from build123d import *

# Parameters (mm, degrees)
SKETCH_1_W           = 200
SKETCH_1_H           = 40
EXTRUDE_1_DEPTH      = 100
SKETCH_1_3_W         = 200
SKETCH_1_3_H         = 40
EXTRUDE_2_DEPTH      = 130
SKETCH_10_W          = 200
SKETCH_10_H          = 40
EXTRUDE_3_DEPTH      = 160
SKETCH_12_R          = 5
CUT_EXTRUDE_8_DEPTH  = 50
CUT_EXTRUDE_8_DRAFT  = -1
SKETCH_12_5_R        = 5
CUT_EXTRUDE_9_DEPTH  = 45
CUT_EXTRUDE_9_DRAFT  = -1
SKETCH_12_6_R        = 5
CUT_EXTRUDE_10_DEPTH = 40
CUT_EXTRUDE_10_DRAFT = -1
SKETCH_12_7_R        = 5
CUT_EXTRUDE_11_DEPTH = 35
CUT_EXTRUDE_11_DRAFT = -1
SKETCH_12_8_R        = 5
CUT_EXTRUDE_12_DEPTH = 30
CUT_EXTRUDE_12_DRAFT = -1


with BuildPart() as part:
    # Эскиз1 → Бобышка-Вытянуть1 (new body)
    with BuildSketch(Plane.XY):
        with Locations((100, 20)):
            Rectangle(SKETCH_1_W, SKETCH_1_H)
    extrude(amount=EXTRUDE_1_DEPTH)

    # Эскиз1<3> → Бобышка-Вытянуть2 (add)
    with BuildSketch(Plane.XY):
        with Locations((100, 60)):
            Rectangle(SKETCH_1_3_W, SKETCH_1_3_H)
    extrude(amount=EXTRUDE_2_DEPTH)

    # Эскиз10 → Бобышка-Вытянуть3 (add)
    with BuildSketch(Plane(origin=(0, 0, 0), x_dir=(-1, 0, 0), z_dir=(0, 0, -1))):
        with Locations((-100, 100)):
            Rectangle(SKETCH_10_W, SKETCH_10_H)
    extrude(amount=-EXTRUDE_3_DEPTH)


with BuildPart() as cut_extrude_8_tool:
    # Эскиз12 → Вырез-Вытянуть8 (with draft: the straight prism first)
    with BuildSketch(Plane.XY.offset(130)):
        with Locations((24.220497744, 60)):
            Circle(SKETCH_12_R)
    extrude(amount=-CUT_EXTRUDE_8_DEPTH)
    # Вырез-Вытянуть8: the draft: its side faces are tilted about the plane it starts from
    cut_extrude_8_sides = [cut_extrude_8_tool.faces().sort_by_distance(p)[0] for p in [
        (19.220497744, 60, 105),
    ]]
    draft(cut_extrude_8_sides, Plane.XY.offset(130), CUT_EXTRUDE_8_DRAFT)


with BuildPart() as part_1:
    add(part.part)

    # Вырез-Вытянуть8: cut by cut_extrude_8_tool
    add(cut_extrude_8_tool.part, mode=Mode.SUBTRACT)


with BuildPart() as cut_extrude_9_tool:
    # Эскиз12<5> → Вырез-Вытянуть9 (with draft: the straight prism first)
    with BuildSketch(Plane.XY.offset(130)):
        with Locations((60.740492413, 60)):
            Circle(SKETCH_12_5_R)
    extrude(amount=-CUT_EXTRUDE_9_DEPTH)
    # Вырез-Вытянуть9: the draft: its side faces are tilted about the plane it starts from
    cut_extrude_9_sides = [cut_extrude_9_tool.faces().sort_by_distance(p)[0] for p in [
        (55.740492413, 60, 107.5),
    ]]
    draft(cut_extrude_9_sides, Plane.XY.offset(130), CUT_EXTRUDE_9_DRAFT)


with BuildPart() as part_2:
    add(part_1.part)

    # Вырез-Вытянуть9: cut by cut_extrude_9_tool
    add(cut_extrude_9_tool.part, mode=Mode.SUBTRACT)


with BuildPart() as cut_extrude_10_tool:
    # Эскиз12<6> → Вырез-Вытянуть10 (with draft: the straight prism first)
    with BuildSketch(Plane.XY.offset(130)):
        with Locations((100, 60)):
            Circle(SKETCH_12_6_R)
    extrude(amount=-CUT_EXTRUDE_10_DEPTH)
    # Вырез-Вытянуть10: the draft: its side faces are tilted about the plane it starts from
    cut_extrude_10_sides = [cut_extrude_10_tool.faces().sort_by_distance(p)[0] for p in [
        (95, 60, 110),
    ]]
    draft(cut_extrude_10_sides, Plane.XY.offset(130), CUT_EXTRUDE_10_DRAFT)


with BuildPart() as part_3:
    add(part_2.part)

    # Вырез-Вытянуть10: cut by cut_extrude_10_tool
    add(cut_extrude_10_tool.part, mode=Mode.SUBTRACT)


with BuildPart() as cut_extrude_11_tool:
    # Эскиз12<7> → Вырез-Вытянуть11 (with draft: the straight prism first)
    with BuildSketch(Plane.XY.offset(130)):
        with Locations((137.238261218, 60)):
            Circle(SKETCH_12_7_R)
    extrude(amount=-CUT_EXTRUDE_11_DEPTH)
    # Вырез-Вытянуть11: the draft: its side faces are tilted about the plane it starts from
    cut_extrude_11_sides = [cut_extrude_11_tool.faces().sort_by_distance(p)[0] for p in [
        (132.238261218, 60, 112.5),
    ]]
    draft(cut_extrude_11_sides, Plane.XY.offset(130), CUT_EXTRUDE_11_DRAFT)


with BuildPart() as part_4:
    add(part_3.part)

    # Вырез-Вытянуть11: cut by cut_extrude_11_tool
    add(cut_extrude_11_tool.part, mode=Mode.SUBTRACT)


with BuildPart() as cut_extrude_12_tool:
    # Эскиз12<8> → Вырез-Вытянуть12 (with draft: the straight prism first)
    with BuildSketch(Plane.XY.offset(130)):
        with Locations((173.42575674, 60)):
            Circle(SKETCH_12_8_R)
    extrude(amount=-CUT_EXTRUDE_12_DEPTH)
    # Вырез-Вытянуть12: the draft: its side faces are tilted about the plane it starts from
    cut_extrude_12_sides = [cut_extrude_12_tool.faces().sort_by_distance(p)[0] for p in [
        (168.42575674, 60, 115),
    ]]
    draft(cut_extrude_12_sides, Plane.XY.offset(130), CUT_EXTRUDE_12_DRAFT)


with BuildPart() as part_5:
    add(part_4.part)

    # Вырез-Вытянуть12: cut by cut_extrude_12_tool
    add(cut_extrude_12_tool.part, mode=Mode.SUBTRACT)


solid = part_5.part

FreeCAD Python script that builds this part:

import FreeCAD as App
import Part
import Sketcher

V = App.Vector
Q = App.Units.Quantity


def faces_at(feature, points):
    """Names of the faces that lie closest to the given points."""
    faces = feature.Shape.Faces
    near = lambda p: min(range(len(faces)), key=lambda i: faces[i].distToShape(Part.Vertex(*p))[0])
    return sorted({f"Face{near(p) + 1}" for p in points})


def add_polygon(sketch, points):
    """Adds a closed chain of lines whose ends are joined by coincident constraints."""
    first, n = sketch.GeometryCount, len(points)
    for a, b in zip(points, points[1:] + points[:1]):
        sketch.addGeometry(Part.LineSegment(App.Vector(*a, 0), App.Vector(*b, 0)), False)
    for i in range(n):
        sketch.addConstraint(Sketcher.Constraint("Coincident", first + i, 2, first + (i + 1) % n, 1))

doc = App.newDocument("Part")
body = doc.addObject("PartDesign::Body", "Body")

# Sketch on XY plane
sketch1 = body.newObject("Sketcher::SketchObject", "Sketch")
sketch1.AttachmentSupport = (doc.getObject("XY_Plane"), [""])
sketch1.MapMode = "FlatFace"
add_polygon(sketch1, [(0, 40), (0, 0), (200, 0), (200, 40)])  # lines 0-3
sketch1.addConstraint([
    Sketcher.Constraint("Vertical", 0),
    Sketcher.Constraint("Horizontal", 1),
    Sketcher.Constraint("Vertical", 2),
    Sketcher.Constraint("Horizontal", 3),
    Sketcher.Constraint("Coincident", 0, 2, -1, 1),
    Sketcher.Constraint("DistanceX", 1, 1, 1, 2, Q("200 mm")),
    Sketcher.Constraint("DistanceY", 0, 2, 0, 1, Q("40 mm")),
])
pad1 = body.newObject("PartDesign::Pad", "Pad")
pad1.Profile = sketch1
pad1.Length = 100

# Sketch on XY plane
sketch2 = body.newObject("Sketcher::SketchObject", "Sketch001")
sketch2.AttachmentSupport = (doc.getObject("XY_Plane"), [""])
sketch2.MapMode = "FlatFace"
add_polygon(sketch2, [(0, 80), (0, 40), (200, 40), (200, 80)])  # lines 0-3
sketch2.addConstraint([
    Sketcher.Constraint("Vertical", 0),
    Sketcher.Constraint("Horizontal", 1),
    Sketcher.Constraint("Vertical", 2),
    Sketcher.Constraint("Horizontal", 3),
    Sketcher.Constraint("PointOnObject", 0, 2, -2),
    Sketcher.Constraint("DistanceX", 1, 1, 1, 2, Q("200 mm")),
    Sketcher.Constraint("DistanceY", 0, 2, 0, 1, Q("40 mm")),
    Sketcher.Constraint("DistanceY", -1, 1, 0, 2, Q("40 mm")),
])
pad2 = body.newObject("PartDesign::Pad", "Pad001")
pad2.Profile = sketch2
pad2.Length = 130

# Sketch on XY plane
sketch3 = body.newObject("Sketcher::SketchObject", "Sketch002")
sketch3.AttachmentSupport = (doc.getObject("XY_Plane"), [""])
sketch3.MapMode = "FlatFace"
add_polygon(sketch3, [(200, 120), (200, 80), (0, 80), (0, 120)])  # lines 0-3
sketch3.addConstraint([
    Sketcher.Constraint("Vertical", 0),
    Sketcher.Constraint("Horizontal", 1),
    Sketcher.Constraint("Vertical", 2),
    Sketcher.Constraint("Horizontal", 3),
    Sketcher.Constraint("PointOnObject", 1, 2, -2),
    Sketcher.Constraint("DistanceX", 1, 2, 1, 1, Q("200 mm")),
    Sketcher.Constraint("DistanceY", 0, 2, 0, 1, Q("40 mm")),
    Sketcher.Constraint("DistanceY", -1, 1, 0, 2, Q("80 mm")),
])
pad3 = body.newObject("PartDesign::Pad", "Pad002")
pad3.Profile = sketch3
pad3.Length = 160
body2 = doc.addObject("PartDesign::Body", "Body001")

# Sketch on XY plane
sketch4 = body2.newObject("Sketcher::SketchObject", "Sketch003")
sketch4.AttachmentSupport = (doc.getObject("XY_Plane001"), [""])
sketch4.MapMode = "FlatFace"
sketch4.AttachmentOffset = App.Placement(V(0, 0, 130), App.Rotation())
sketch4.addGeometry(Part.Circle(V(24, 60, 0), V(0, 0, 1), 5), False)
sketch4.addConstraint([
    Sketcher.Constraint("Diameter", 0, Q("10 mm")),
    Sketcher.Constraint("DistanceY", -1, 1, 0, 3, Q("60 mm")),
    Sketcher.Constraint("DistanceX", -1, 1, 0, 3, Q("24.220498 mm")),
])
pad4 = body2.newObject("PartDesign::Pad", "Pad003")
pad4.Profile = sketch4
pad4.Length = 50
pad4.Reversed = True
doc.recompute()

datumplane = body2.newObject("PartDesign::Plane", "DatumPlane")
datumplane.AttachmentSupport = (doc.getObject("XY_Plane001"), [""])
datumplane.MapMode = "FlatFace"
datumplane.AttachmentOffset = App.Placement(V(0, 0, 130), App.Rotation())
draft = body2.newObject("PartDesign::Draft", "Draft")
draft.Base = (pad4, faces_at(pad4, [(19.22, 60, 105)]))
draft.NeutralPlane = (datumplane, [""])
draft.Angle = 1
draft.Reversed = True
doc.recompute()

boolean = body.newObject("PartDesign::Boolean", "Boolean")
boolean.Type = "Cut"
boolean.addObjects([body2])
body3 = doc.addObject("PartDesign::Body", "Body002")

# Sketch on XY plane
sketch5 = body3.newObject("Sketcher::SketchObject", "Sketch004")
sketch5.AttachmentSupport = (doc.getObject("XY_Plane002"), [""])
sketch5.MapMode = "FlatFace"
sketch5.AttachmentOffset = App.Placement(V(0, 0, 130), App.Rotation())
sketch5.addGeometry(Part.Circle(V(61, 60, 0), V(0, 0, 1), 5), False)
sketch5.addConstraint([
    Sketcher.Constraint("Diameter", 0, Q("10 mm")),
    Sketcher.Constraint("DistanceY", -1, 1, 0, 3, Q("60 mm")),
    Sketcher.Constraint("DistanceX", -1, 1, 0, 3, Q("60.740492 mm")),
])
pad5 = body3.newObject("PartDesign::Pad", "Pad004")
pad5.Profile = sketch5
pad5.Length = 45
pad5.Reversed = True
doc.recompute()

datumplane2 = body3.newObject("PartDesign::Plane", "DatumPlane001")
datumplane2.AttachmentSupport = (doc.getObject("XY_Plane002"), [""])
datumplane2.MapMode = "FlatFace"
datumplane2.AttachmentOffset = App.Placement(V(0, 0, 130), App.Rotation())
draft2 = body3.newObject("PartDesign::Draft", "Draft001")
draft2.Base = (pad5, faces_at(pad5, [(55.74, 60, 107.5)]))
draft2.NeutralPlane = (datumplane2, [""])
draft2.Angle = 1
draft2.Reversed = True
doc.recompute()

boolean2 = body.newObject("PartDesign::Boolean", "Boolean001")
boolean2.Type = "Cut"
boolean2.addObjects([body3])
body4 = doc.addObject("PartDesign::Body", "Body003")

# Sketch on XY plane
sketch6 = body4.newObject("Sketcher::SketchObject", "Sketch005")
sketch6.AttachmentSupport = (doc.getObject("XY_Plane003"), [""])
sketch6.MapMode = "FlatFace"
sketch6.AttachmentOffset = App.Placement(V(0, 0, 130), App.Rotation())
sketch6.addGeometry(Part.Circle(V(100, 60, 0), V(0, 0, 1), 5), False)
sketch6.addConstraint([
    Sketcher.Constraint("Diameter", 0, Q("10 mm")),
    Sketcher.Constraint("DistanceX", -1, 1, 0, 3, Q("100 mm")),
    Sketcher.Constraint("DistanceY", -1, 1, 0, 3, Q("60 mm")),
])
pad6 = body4.newObject("PartDesign::Pad", "Pad005")
pad6.Profile = sketch6
pad6.Length = 40
pad6.Reversed = True
doc.recompute()

datumplane3 = body4.newObject("PartDesign::Plane", "DatumPlane002")
datumplane3.AttachmentSupport = (doc.getObject("XY_Plane003"), [""])
datumplane3.MapMode = "FlatFace"
datumplane3.AttachmentOffset = App.Placement(V(0, 0, 130), App.Rotation())
draft3 = body4.newObject("PartDesign::Draft", "Draft002")
draft3.Base = (pad6, faces_at(pad6, [(95, 60, 110)]))
draft3.NeutralPlane = (datumplane3, [""])
draft3.Angle = 1
draft3.Reversed = True
doc.recompute()

boolean3 = body.newObject("PartDesign::Boolean", "Boolean002")
boolean3.Type = "Cut"
boolean3.addObjects([body4])
body5 = doc.addObject("PartDesign::Body", "Body004")

# Sketch on XY plane
sketch7 = body5.newObject("Sketcher::SketchObject", "Sketch006")
sketch7.AttachmentSupport = (doc.getObject("XY_Plane004"), [""])
sketch7.MapMode = "FlatFace"
sketch7.AttachmentOffset = App.Placement(V(0, 0, 130), App.Rotation())
sketch7.addGeometry(Part.Circle(V(137, 60, 0), V(0, 0, 1), 5), False)
sketch7.addConstraint([
    Sketcher.Constraint("Diameter", 0, Q("10 mm")),
    Sketcher.Constraint("DistanceY", -1, 1, 0, 3, Q("60 mm")),
    Sketcher.Constraint("DistanceX", -1, 1, 0, 3, Q("137.238261 mm")),
])
pad7 = body5.newObject("PartDesign::Pad", "Pad006")
pad7.Profile = sketch7
pad7.Length = 35
pad7.Reversed = True
doc.recompute()

datumplane4 = body5.newObject("PartDesign::Plane", "DatumPlane003")
datumplane4.AttachmentSupport = (doc.getObject("XY_Plane004"), [""])
datumplane4.MapMode = "FlatFace"
datumplane4.AttachmentOffset = App.Placement(V(0, 0, 130), App.Rotation())
draft4 = body5.newObject("PartDesign::Draft", "Draft003")
draft4.Base = (pad7, faces_at(pad7, [(132.238, 60, 112.5)]))
draft4.NeutralPlane = (datumplane4, [""])
draft4.Angle = 1
draft4.Reversed = True
doc.recompute()

boolean4 = body.newObject("PartDesign::Boolean", "Boolean003")
boolean4.Type = "Cut"
boolean4.addObjects([body5])
body6 = doc.addObject("PartDesign::Body", "Body005")

# Sketch on XY plane
sketch8 = body6.newObject("Sketcher::SketchObject", "Sketch007")
sketch8.AttachmentSupport = (doc.getObject("XY_Plane005"), [""])
sketch8.MapMode = "FlatFace"
sketch8.AttachmentOffset = App.Placement(V(0, 0, 130), App.Rotation())
sketch8.addGeometry(Part.Circle(V(173, 60, 0), V(0, 0, 1), 5), False)
sketch8.addConstraint([
    Sketcher.Constraint("Diameter", 0, Q("10 mm")),
    Sketcher.Constraint("DistanceY", -1, 1, 0, 3, Q("60 mm")),
    Sketcher.Constraint("DistanceX", -1, 1, 0, 3, Q("173.425757 mm")),
])
pad8 = body6.newObject("PartDesign::Pad", "Pad007")
pad8.Profile = sketch8
pad8.Length = 30
pad8.Reversed = True
doc.recompute()

datumplane5 = body6.newObject("PartDesign::Plane", "DatumPlane004")
datumplane5.AttachmentSupport = (doc.getObject("XY_Plane005"), [""])
datumplane5.MapMode = "FlatFace"
datumplane5.AttachmentOffset = App.Placement(V(0, 0, 130), App.Rotation())
draft5 = body6.newObject("PartDesign::Draft", "Draft004")
draft5.Base = (pad8, faces_at(pad8, [(168.426, 60, 115)]))
draft5.NeutralPlane = (datumplane5, [""])
draft5.Angle = 1
draft5.Reversed = True
doc.recompute()

boolean5 = body.newObject("PartDesign::Boolean", "Boolean004")
boolean5.Type = "Cut"
boolean5.addObjects([body6])

doc.recompute()
